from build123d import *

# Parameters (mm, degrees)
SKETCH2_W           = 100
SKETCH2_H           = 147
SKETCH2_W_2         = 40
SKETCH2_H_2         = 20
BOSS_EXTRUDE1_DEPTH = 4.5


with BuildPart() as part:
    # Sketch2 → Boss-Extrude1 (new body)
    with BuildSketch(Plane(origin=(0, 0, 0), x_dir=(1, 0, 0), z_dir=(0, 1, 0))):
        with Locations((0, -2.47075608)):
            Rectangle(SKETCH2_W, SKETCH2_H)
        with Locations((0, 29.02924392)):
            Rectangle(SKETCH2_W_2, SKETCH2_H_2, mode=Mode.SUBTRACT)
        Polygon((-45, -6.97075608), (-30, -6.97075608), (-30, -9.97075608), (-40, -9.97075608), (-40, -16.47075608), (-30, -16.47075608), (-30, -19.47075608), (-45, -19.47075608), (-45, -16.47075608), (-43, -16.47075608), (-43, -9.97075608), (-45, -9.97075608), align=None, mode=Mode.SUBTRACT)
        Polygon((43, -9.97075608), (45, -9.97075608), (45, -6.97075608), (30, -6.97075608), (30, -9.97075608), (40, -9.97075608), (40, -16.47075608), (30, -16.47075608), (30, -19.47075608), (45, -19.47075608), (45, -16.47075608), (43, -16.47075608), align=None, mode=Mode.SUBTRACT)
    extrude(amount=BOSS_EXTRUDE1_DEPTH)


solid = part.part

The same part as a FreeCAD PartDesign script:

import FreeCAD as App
import Part
import Sketcher
from FreeCAD import Vector
Q = App.Units.Quantity


def add_polygon(sketch, points):
    """Adds a closed chain of lines whose ends are joined by coincident constraints."""
    first, n = sketch.GeometryCount, len(points)
    for a, b in zip(points, points[1:] + points[:1]):
        sketch.addGeometry(Part.LineSegment(App.Vector(*a, 0), App.Vector(*b, 0)), False)
    for i in range(n):
        sketch.addConstraint(Sketcher.Constraint("Coincident", first + i, 2, first + (i + 1) % n, 1))

doc = App.newDocument("Part")
body = doc.addObject("PartDesign::Body", "Body")

# Sketch on XZ plane
sketch1 = doc.addObject("Sketcher::SketchObject", "Sketch")
body.addObject(sketch1)
sketch1.AttachmentSupport = (doc.XZ_Plane, [""])
sketch1.MapMode = "FlatFace"
add_polygon(sketch1, [(-50, -71.029244), (-50, 75.970756), (50, 75.970756), (50, -71.029244)])  # lines 0-3
add_polygon(sketch1, [(-45, 9.970756), (-45, 6.970756), (-30, 6.970756), (-30, 9.970756), (-40, 9.970756), (-40, 16.470756), (-30, 16.470756), (-30, 19.470756), (-45, 19.470756), (-45, 16.470756), (-43, 16.470756), (-43, 9.970756)])  # lines 4-15
add_polygon(sketch1, [(45, 9.970756), (43, 9.970756), (43, 16.470756), (45, 16.470756), (45, 19.470756), (30, 19.470756), (30, 16.470756), (40, 16.470756), (40, 9.970756), (30, 9.970756), (30, 6.970756), (45, 6.970756)])  # lines 16-27
add_polygon(sketch1, [(20, -19.029244), (-20, -19.029244), (-20, -39.029244), (20, -39.029244)])  # lines 28-31
sketch1.addConstraint(Sketcher.Constraint("Vertical", 0))
sketch1.addConstraint(Sketcher.Constraint("Horizontal", 1))
sketch1.addConstraint(Sketcher.Constraint("Vertical", 2))
sketch1.addConstraint(Sketcher.Constraint("Horizontal", 3))
sketch1.addConstraint(Sketcher.Constraint("Vertical", 4))
sketch1.addConstraint(Sketcher.Constraint("Horizontal", 5))
sketch1.addConstraint(Sketcher.Constraint("Vertical", 6))
sketch1.addConstraint(Sketcher.Constraint("Horizontal", 7))
sketch1.addConstraint(Sketcher.Constraint("Vertical", 8))
sketch1.addConstraint(Sketcher.Constraint("Horizontal", 9))
sketch1.addConstraint(Sketcher.Constraint("Vertical", 10))
sketch1.addConstraint(Sketcher.Constraint("Horizontal", 11))
sketch1.addConstraint(Sketcher.Constraint("Vertical", 12))
sketch1.addConstraint(Sketcher.Constraint("Horizontal", 13))
sketch1.addConstraint(Sketcher.Constraint("Vertical", 14))
sketch1.addConstraint(Sketcher.Constraint("Horizontal", 15))
sketch1.addConstraint(Sketcher.Constraint("Horizontal", 16))
sketch1.addConstraint(Sketcher.Constraint("Vertical", 17))
sketch1.addConstraint(Sketcher.Constraint("Horizontal", 18))
sketch1.addConstraint(Sketcher.Constraint("Vertical", 19))
sketch1.addConstraint(Sketcher.Constraint("Horizontal", 20))
sketch1.addConstraint(Sketcher.Constraint("Vertical", 21))
sketch1.addConstraint(Sketcher.Constraint("Horizontal", 22))
sketch1.addConstraint(Sketcher.Constraint("Vertical", 23))
sketch1.addConstraint(Sketcher.Constraint("Horizontal", 24))
sketch1.addConstraint(Sketcher.Constraint("Vertical", 25))
sketch1.addConstraint(Sketcher.Constraint("Horizontal", 26))
sketch1.addConstraint(Sketcher.Constraint("Vertical", 27))
sketch1.addConstraint(Sketcher.Constraint("Horizontal", 28))
sketch1.addConstraint(Sketcher.Constraint("Vertical", 29))
sketch1.addConstraint(Sketcher.Constraint("Horizontal", 30))
sketch1.addConstraint(Sketcher.Constraint("Vertical", 31))
sketch1.addConstraint(Sketcher.Constraint("Symmetric", 14, 2, 16, 2, -2))
sketch1.addConstraint(Sketcher.Constraint("Symmetric", 12, 2, 18, 2, -2))
sketch1.addConstraint(Sketcher.Constraint("Symmetric", 10, 2, 20, 2, -2))
sketch1.addConstraint(Sketcher.Constraint("Symmetric", 8, 2, 22, 2, -2))
sketch1.addConstraint(Sketcher.Constraint("Symmetric", 6, 2, 24, 2, -2))
sketch1.addConstraint(Sketcher.Constraint("Symmetric", 4, 2, 26, 2, -2))
sketch1.addConstraint(Sketcher.Constraint("Horizontal", 9, 2, 12, 2))
sketch1.addConstraint(Sketcher.Constraint("Horizontal", 7, 2, 14, 2))
sketch1.addConstraint(Sketcher.Constraint("Vertical", 6, 2, 9, 2))
sketch1.addConstraint(Sketcher.Constraint("Vertical", 4, 2, 11, 2))
sketch1.addConstraint(Sketcher.Constraint("Equal", 6, 10))
sketch1.addConstraint(Sketcher.Constraint("DistanceX", 1, 1, 1, 2, Q("100 mm")))
sketch1.addConstraint(Sketcher.Constraint("DistanceX", 5, 1, 5, 2, Q("15 mm")))
sketch1.addConstraint(Sketcher.Constraint("DistanceX", 7, 2, 7, 1, Q("10 mm")))
sketch1.addConstraint(Sketcher.Constraint("DistanceX", 13, 1, 13, 2, Q("2 mm")))
sketch1.addConstraint(Sketcher.Constraint("DistanceX", 28, 2, 28, 1, Q("40 mm")))
sketch1.addConstraint(Sketcher.Constraint("DistanceY", 0, 1, 0, 2, Q("147 mm")))
sketch1.addConstraint(Sketcher.Constraint("DistanceY", 4, 2, 4, 1, Q("3 mm")))
sketch1.addConstraint(Sketcher.Constraint("DistanceY", 29, 2, 29, 1, Q("20 mm")))
sketch1.addConstraint(Sketcher.Constraint("DistanceY", 8, 1, 8, 2, Q("6.5 mm")))
sketch1.addConstraint(Sketcher.Constraint("DistanceX", 0, 2, -1, 1, Q("50 mm")))
sketch1.addConstraint(Sketcher.Constraint("DistanceX", 4, 2, -1, 1, Q("45 mm")))
sketch1.addConstraint(Sketcher.Constraint("DistanceX", 28, 2, -1, 1, Q("20 mm")))
sketch1.addConstraint(Sketcher.Constraint("DistanceY", 4, 2, 0, 2, Q("69 mm")))
sketch1.addConstraint(Sketcher.Constraint("DistanceY", 28, 2, 5, 2, Q("26 mm")))
sketch1.addConstraint(Sketcher.Constraint("DistanceY", -1, 1, 0, 2, Q("75.970756 mm")))
pad1 = doc.addObject("PartDesign::Pad", "Pad")
body.addObject(pad1)
pad1.Profile = sketch1
pad1.Length = 4.5
pad1.Reversed = True

doc.recompute()
